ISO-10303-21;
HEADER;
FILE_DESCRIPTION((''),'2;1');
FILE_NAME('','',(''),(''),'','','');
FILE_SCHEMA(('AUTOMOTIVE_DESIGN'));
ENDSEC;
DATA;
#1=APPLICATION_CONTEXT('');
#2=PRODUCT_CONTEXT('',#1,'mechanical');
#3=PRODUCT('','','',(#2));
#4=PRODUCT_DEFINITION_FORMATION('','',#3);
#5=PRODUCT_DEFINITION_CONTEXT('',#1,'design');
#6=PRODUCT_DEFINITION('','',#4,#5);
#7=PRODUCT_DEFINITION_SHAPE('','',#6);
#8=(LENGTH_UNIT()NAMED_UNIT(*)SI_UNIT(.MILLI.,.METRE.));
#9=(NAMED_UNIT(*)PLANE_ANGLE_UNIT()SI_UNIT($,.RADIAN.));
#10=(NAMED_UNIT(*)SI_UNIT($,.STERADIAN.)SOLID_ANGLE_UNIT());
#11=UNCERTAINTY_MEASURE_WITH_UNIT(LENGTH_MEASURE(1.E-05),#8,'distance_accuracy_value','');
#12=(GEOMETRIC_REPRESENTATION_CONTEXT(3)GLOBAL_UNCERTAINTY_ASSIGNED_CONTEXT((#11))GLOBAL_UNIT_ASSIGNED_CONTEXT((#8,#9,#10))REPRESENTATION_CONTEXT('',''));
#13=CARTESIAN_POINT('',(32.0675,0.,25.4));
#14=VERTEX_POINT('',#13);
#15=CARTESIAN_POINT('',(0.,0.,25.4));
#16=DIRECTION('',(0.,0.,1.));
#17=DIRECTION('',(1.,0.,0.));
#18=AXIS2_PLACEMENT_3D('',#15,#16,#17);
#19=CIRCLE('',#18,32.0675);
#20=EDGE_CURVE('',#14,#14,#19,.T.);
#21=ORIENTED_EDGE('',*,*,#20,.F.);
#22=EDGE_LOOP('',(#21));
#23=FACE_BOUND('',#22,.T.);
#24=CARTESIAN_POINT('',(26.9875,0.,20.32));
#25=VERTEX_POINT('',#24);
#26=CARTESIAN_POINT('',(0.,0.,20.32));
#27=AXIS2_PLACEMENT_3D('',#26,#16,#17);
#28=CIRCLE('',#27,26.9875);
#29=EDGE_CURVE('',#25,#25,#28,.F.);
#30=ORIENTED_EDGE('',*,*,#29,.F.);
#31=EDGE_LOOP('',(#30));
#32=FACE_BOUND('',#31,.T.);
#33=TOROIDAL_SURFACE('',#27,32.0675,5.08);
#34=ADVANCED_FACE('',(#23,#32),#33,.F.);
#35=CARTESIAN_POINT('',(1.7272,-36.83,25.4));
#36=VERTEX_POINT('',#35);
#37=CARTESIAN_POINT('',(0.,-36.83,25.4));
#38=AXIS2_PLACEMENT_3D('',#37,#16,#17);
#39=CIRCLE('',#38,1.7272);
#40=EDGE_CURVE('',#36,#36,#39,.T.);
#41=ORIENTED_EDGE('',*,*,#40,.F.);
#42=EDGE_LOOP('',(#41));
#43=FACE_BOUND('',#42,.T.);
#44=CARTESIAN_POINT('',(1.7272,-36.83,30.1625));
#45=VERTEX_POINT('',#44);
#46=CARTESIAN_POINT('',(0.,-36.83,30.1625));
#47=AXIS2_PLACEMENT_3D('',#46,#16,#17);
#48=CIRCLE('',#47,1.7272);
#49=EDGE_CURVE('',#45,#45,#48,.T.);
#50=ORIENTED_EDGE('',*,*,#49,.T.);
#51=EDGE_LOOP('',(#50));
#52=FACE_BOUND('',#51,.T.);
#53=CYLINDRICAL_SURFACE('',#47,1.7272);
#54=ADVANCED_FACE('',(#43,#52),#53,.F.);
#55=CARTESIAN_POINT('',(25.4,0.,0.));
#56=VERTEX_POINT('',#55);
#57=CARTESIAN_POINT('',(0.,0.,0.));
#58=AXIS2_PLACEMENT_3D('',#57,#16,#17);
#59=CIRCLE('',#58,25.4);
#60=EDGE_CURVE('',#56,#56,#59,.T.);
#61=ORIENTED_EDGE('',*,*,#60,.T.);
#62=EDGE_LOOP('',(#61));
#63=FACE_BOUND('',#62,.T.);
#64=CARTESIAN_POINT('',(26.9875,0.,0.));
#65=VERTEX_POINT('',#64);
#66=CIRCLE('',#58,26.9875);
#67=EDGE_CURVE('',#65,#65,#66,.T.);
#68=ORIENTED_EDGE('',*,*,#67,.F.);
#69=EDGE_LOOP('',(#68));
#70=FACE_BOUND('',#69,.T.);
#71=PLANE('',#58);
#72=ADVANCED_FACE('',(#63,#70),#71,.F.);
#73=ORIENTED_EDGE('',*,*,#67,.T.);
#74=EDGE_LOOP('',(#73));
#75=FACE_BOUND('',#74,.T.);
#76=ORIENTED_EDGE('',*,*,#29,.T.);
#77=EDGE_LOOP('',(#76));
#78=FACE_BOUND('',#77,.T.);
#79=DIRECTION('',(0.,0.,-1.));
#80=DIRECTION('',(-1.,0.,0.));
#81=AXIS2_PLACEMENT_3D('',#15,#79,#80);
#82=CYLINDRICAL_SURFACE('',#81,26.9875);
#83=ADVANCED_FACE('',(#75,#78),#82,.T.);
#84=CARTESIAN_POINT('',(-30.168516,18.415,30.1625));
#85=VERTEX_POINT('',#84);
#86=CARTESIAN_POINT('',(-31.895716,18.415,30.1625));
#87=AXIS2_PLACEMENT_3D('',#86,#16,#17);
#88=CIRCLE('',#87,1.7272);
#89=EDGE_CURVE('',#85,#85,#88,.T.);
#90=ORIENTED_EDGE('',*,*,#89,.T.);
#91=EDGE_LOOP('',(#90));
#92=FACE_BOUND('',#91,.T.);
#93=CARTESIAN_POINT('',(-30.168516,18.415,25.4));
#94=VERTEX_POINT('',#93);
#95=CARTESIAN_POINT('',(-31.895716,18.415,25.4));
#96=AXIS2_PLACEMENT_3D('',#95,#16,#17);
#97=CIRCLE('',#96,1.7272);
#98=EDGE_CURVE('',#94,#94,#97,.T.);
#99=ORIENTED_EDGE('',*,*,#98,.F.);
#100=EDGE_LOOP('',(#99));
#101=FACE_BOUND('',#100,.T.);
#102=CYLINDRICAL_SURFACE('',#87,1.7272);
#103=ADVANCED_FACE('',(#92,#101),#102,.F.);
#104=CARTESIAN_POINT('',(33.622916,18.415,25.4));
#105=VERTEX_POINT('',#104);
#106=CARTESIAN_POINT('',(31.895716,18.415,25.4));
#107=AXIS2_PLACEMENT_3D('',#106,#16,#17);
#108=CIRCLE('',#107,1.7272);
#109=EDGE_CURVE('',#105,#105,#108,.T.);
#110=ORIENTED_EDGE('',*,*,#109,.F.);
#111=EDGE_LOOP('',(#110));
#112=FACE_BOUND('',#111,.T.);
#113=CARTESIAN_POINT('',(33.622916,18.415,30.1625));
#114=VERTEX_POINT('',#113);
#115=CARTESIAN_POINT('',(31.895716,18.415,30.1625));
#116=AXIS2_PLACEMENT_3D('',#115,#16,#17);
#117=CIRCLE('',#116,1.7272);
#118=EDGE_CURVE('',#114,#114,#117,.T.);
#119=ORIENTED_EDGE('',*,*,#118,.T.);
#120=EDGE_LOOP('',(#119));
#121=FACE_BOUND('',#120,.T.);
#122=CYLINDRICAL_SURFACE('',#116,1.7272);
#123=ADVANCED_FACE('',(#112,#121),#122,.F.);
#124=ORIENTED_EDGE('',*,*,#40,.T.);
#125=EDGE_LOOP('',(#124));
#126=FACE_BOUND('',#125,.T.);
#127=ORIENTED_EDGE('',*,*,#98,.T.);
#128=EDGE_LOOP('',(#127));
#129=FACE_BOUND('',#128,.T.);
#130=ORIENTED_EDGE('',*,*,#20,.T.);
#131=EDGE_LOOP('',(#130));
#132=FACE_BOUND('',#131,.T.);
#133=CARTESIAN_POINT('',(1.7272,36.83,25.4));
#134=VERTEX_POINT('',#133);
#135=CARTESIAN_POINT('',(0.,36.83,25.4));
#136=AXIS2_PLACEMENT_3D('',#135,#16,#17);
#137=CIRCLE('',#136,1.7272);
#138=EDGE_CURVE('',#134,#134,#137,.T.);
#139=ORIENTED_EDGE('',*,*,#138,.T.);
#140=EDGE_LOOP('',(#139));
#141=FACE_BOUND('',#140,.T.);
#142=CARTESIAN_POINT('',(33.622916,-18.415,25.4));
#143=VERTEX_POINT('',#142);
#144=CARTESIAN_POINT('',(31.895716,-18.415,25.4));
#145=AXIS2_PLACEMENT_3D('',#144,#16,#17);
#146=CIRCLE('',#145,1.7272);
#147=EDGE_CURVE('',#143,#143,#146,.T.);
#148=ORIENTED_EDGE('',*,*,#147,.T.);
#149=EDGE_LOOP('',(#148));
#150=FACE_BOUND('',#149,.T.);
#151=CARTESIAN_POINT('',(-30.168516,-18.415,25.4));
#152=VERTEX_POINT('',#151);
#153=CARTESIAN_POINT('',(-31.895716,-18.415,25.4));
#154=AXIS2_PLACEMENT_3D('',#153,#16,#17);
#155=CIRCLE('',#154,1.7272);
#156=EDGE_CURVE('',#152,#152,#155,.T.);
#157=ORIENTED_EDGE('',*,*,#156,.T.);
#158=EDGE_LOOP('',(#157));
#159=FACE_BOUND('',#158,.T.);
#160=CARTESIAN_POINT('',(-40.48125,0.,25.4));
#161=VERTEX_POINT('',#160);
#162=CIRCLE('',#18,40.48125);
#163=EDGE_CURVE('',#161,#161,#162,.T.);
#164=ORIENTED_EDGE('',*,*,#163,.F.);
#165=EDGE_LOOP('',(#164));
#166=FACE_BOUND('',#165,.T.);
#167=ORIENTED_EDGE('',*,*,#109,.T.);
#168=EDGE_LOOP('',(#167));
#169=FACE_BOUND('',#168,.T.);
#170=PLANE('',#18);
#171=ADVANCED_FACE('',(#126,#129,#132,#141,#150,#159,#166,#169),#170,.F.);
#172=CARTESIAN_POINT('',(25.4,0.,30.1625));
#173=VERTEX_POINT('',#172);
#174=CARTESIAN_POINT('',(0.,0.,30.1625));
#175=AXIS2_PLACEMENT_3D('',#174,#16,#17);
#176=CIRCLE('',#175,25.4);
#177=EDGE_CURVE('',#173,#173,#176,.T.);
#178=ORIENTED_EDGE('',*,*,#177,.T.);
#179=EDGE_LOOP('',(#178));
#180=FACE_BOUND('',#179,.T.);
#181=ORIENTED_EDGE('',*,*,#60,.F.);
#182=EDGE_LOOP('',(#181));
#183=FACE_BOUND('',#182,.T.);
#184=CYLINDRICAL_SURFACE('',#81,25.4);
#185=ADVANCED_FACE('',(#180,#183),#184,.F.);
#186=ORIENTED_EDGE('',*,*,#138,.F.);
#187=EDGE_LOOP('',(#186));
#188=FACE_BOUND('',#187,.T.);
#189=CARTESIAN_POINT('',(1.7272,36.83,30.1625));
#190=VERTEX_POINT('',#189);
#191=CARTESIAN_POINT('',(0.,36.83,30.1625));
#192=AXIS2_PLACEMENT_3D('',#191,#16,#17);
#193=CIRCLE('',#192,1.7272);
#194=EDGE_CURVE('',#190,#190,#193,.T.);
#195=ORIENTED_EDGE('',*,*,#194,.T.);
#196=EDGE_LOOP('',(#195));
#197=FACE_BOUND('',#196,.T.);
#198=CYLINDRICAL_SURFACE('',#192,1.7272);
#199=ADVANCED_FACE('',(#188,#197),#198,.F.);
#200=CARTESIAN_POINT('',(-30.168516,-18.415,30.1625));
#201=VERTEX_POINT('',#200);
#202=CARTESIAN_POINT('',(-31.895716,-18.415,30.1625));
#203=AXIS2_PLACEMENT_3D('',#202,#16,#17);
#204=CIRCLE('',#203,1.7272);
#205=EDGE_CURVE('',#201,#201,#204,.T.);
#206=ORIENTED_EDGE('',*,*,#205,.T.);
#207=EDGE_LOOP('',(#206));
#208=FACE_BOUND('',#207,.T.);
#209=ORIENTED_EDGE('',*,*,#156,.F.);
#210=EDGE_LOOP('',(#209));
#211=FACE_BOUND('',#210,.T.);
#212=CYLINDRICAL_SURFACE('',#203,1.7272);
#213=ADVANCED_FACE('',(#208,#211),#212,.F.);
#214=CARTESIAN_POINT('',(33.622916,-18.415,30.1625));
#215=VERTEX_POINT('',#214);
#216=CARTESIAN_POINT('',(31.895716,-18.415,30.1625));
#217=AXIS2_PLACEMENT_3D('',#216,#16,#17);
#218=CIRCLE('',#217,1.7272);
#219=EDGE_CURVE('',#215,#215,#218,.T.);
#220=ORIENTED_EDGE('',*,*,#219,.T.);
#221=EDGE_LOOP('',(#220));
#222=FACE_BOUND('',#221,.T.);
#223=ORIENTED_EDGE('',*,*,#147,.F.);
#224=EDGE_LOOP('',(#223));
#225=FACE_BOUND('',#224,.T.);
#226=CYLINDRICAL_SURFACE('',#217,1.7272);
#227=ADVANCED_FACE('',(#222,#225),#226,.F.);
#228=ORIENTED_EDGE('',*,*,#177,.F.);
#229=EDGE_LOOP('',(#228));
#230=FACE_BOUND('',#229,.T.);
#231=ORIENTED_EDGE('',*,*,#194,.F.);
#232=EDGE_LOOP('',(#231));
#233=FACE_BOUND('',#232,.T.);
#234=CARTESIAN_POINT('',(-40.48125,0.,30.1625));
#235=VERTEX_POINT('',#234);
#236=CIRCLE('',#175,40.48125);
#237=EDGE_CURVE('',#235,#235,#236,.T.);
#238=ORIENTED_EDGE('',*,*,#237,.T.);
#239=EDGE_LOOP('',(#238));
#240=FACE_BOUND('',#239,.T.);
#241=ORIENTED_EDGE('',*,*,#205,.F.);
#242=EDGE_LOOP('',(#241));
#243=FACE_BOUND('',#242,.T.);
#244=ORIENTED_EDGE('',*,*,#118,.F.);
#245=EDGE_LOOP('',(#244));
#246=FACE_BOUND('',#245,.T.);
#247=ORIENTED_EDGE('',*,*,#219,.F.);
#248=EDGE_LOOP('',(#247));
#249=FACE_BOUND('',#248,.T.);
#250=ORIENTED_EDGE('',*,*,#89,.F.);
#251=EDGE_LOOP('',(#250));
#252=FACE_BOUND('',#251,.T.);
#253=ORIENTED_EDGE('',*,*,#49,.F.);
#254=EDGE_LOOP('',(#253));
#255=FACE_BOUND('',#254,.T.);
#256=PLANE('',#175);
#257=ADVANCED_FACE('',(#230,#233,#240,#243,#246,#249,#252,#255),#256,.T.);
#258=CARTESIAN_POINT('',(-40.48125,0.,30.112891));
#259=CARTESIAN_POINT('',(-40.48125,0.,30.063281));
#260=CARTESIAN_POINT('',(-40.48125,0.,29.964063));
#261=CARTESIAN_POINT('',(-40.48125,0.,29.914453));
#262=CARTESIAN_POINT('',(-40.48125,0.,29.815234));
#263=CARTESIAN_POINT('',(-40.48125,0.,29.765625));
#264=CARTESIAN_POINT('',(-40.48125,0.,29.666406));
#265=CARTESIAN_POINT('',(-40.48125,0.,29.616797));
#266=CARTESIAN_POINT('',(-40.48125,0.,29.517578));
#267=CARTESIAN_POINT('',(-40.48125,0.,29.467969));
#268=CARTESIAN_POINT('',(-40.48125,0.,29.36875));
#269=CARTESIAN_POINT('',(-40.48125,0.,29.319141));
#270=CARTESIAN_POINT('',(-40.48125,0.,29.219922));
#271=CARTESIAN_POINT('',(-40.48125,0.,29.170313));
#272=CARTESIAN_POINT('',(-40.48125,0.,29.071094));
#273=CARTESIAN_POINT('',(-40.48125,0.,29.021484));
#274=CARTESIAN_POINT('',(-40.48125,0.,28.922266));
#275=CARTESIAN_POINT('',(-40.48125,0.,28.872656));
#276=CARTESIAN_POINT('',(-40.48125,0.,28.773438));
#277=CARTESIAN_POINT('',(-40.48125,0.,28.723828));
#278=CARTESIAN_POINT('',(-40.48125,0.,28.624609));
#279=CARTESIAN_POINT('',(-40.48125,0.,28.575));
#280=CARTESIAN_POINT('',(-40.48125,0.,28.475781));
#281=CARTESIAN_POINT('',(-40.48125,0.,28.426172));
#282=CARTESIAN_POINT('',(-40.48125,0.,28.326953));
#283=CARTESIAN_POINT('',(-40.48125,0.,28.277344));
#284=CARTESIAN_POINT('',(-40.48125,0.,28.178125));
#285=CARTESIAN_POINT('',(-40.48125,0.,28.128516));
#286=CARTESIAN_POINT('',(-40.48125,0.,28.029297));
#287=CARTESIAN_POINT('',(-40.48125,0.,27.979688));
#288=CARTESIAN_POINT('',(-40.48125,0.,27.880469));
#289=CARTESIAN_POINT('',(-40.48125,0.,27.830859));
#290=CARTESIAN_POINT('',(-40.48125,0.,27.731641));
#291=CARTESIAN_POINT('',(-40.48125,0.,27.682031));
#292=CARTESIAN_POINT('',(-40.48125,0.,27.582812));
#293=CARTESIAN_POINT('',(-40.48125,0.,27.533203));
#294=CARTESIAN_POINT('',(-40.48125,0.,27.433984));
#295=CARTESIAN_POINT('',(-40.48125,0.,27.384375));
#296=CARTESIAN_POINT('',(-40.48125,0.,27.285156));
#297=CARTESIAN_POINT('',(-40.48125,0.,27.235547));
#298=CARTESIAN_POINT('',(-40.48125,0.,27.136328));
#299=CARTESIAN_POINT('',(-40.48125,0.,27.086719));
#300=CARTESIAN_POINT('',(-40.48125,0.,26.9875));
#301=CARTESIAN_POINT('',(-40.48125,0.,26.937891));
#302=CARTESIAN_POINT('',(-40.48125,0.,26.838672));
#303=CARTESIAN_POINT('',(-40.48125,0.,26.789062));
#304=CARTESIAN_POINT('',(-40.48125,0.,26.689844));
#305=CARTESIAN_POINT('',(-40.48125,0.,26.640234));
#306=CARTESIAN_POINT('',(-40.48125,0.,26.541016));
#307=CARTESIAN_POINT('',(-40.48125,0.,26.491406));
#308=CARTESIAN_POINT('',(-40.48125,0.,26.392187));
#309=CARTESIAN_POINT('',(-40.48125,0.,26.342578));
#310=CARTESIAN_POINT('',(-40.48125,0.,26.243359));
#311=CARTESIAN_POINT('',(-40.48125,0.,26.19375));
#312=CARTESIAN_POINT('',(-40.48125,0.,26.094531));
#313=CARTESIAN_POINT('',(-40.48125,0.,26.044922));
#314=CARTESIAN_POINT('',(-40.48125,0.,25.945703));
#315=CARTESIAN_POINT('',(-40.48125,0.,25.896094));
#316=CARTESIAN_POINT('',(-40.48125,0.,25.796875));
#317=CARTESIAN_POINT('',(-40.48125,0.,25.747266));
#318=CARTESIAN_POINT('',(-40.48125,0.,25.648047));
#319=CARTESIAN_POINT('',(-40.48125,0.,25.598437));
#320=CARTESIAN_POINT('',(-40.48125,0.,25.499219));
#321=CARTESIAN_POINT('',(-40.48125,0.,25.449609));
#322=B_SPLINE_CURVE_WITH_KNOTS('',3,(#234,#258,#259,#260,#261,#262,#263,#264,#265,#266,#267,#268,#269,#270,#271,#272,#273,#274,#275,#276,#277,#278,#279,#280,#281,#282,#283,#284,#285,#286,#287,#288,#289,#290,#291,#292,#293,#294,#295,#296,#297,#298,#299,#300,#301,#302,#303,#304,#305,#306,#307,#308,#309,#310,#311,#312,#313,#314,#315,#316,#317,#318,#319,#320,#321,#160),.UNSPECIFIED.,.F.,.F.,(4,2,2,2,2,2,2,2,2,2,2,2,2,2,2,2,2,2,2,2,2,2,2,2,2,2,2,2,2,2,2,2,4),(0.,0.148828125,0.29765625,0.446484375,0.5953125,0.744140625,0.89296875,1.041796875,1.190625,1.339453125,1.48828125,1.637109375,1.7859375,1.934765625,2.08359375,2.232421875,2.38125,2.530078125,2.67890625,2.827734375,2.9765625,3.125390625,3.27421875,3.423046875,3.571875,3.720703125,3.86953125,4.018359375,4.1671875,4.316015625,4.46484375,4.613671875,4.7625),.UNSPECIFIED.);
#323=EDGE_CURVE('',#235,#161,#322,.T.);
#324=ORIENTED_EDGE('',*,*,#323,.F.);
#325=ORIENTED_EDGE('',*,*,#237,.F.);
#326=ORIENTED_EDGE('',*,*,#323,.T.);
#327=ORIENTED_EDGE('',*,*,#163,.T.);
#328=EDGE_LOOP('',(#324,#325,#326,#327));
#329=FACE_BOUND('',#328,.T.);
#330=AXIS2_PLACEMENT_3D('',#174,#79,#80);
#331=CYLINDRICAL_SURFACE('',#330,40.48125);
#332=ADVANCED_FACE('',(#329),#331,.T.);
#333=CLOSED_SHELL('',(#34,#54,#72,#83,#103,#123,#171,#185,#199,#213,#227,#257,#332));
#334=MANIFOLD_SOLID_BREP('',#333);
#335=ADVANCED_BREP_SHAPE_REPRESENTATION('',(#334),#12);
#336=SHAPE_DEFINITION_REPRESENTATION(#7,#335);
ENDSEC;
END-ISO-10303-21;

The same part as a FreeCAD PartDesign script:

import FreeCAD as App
import Part
import Sketcher
Q = App.Units.Quantity


def edges_at(feature, points):
    """Names of the edges that pass closest to the given points."""
    edges = feature.Shape.Edges
    near = lambda p: min(range(len(edges)), key=lambda i: edges[i].distToShape(Part.Vertex(*p))[0])
    return sorted({f"Edge{near(p) + 1}" for p in points})


def add_polygon(sketch, points):
    """Adds a closed chain of lines whose ends are joined by coincident constraints."""
    first, n = sketch.GeometryCount, len(points)
    for a, b in zip(points, points[1:] + points[:1]):
        sketch.addGeometry(Part.LineSegment(App.Vector(*a, 0), App.Vector(*b, 0)), False)
    for i in range(n):
        sketch.addConstraint(Sketcher.Constraint("Coincident", first + i, 2, first + (i + 1) % n, 1))

doc = App.newDocument("Part")
body = doc.addObject("PartDesign::Body", "Body")

# Sketch on XY plane
sketch1 = body.newObject("Sketcher::SketchObject", "Sketch")
sketch1.AttachmentSupport = (doc.getObject("XY_Plane"), [""])
sketch1.MapMode = "FlatFace"
sketch1.addGeometry(Part.Circle(App.Vector(0, 0, 0), App.Vector(0, 0, 1), 27), False)
sketch1.addGeometry(Part.Circle(App.Vector(0, 0, 0), App.Vector(0, 0, 1), 25), False)
sketch1.addConstraint(Sketcher.Constraint("Coincident", 0, 3, -1, 1))
sketch1.addConstraint(Sketcher.Constraint("Coincident", 1, 3, -1, 1))
sketch1.addConstraint(Sketcher.Constraint("Diameter", 1, Q("2 in")))
sketch1.addConstraint(Sketcher.Constraint("Diameter", 0, Q("2.125 in")))
pad1 = body.newObject("PartDesign::Pad", "Pad")
pad1.Profile = sketch1
pad1.Length = Q("1 in")

# Sketch on XY plane
sketch2 = body.newObject("Sketcher::SketchObject", "Sketch001")
sketch2.AttachmentSupport = (doc.getObject("XY_Plane"), [""])
sketch2.MapMode = "FlatFace"
sketch2.AttachmentOffset = App.Placement(App.Vector(0, 0, 1 * 25.4), App.Rotation())
sketch2.addGeometry(Part.Circle(App.Vector(0, 0, 0), App.Vector(0, 0, 1), 40), False)
sketch2.addGeometry(Part.Circle(App.Vector(0, 0, 0), App.Vector(0, 0, 1), 25), False)
sketch2.addConstraint(Sketcher.Constraint("Coincident", 0, 3, -1, 1))
sketch2.addConstraint(Sketcher.Constraint("Coincident", 1, 3, -1, 1))
sketch2.addConstraint(Sketcher.Constraint("Diameter", 1, Q("2 in")))
sketch2.addConstraint(Sketcher.Constraint("Diameter", 0, Q("3.1875 in")))
pad2 = body.newObject("PartDesign::Pad", "Pad001")
pad2.Profile = sketch2
pad2.Length = Q("0.1875 in")
doc.recompute()

fillet = body.newObject("PartDesign::Fillet", "Fillet")
fillet.Base = (pad2, edges_at(pad2, [(-26.988, 0, 25.4)]))
fillet.Radius = Q("0.2 in")

# Sketch on YZ plane
sketch3 = body.newObject("Sketcher::SketchObject", "Sketch002")
sketch3.AttachmentSupport = (doc.getObject("YZ_Plane"), [""])
sketch3.MapMode = "FlatFace"
add_polygon(sketch3, [(36.8, 18.5), (36.8, 30.2), (35.1, 30.2), (35.1, 19.5)])  # lines 0-3
sketch3.addGeometry(Part.LineSegment(App.Vector(36.8, 30.2, 0), App.Vector(36.8, 18.5, 0)), True)  # axis
sketch3.addConstraint(Sketcher.Constraint("Vertical", 0))
sketch3.addConstraint(Sketcher.Constraint("Horizontal", 1))
sketch3.addConstraint(Sketcher.Constraint("Vertical", 2))
sketch3.addConstraint(Sketcher.Constraint("Vertical", 4))
sketch3.addConstraint(Sketcher.Constraint("Coincident", 4, 1, 0, 2))
sketch3.addConstraint(Sketcher.Constraint("Equal", 0, 4))
sketch3.addConstraint(Sketcher.Constraint("Angle", 3, Q("-31 deg")))
sketch3.addConstraint(Sketcher.Constraint("DistanceY", 2, 2, 2, 1, Q("0.42 in")))
sketch3.addConstraint(Sketcher.Constraint("DistanceX", 1, 2, 1, 1, Q("0.068 in")))
sketch3.addConstraint(Sketcher.Constraint("DistanceX", -1, 1, 0, 2, Q("1.45 in")))
sketch3.addConstraint(Sketcher.Constraint("DistanceY", -1, 1, 0, 2, Q("1.1875 in")))
groove = body.newObject("PartDesign::Groove", "Groove")
groove.Profile = sketch3
groove.ReferenceAxis = (sketch3, ["Axis0"])
groove.Angle = 360
doc.recompute()

polarpattern = body.newObject("PartDesign::PolarPattern", "PolarPattern")
polarpattern.Originals = [groove]
polarpattern.Axis = (doc.getObject("Z_Axis"), [""])
polarpattern.Angle = 360
polarpattern.Occurrences = 6
body.Tip = polarpattern

doc.recompute()
